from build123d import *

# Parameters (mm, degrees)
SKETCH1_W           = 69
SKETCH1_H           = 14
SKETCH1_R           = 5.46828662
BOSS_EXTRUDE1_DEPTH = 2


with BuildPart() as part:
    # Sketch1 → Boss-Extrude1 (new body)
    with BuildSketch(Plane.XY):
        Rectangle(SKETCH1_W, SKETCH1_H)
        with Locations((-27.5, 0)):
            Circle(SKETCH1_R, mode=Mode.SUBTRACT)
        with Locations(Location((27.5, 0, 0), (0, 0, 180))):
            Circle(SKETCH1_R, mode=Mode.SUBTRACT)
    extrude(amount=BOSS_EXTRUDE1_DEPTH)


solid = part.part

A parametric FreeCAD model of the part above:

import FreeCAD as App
import Part
import Sketcher

doc = App.newDocument("Part")
body = doc.addObject("PartDesign::Body", "Body")

sketch1 = body.newObject("Sketcher::SketchObject", "Sketch")
sketch1.AttachmentSupport = (doc.getObject("XY_Plane"), [""])
sketch1.MapMode = "FlatFace"
sketch1.addGeometry([
    Part.LineSegment(App.Vector(-34, 7, 0), App.Vector(-34, -7, 0)),
    Part.LineSegment(App.Vector(-34, -7, 0), App.Vector(34, -7, 0)),
    Part.LineSegment(App.Vector(34, -7, 0), App.Vector(34, 7, 0)),
    Part.LineSegment(App.Vector(34, 7, 0), App.Vector(-34, 7, 0)),
    Part.Circle(App.Vector(-28, 0, 0), App.Vector(0, 0, 1), 5),
    Part.Circle(App.Vector(28, 0, 0), App.Vector(0, 0, 1), 5),
], False)
sketch1.addConstraint([
    Sketcher.Constraint("Coincident", 0, 2, 1, 1),
    Sketcher.Constraint("Coincident", 1, 2, 2, 1),
    Sketcher.Constraint("Coincident", 2, 2, 3, 1),
    Sketcher.Constraint("Coincident", 3, 2, 0, 1),
    Sketcher.Constraint("Vertical", 0),
    Sketcher.Constraint("Horizontal", 1),
    Sketcher.Constraint("Vertical", 2),
    Sketcher.Constraint("Horizontal", 3),
    Sketcher.Constraint("Equal", 4, 5),
    Sketcher.Constraint("Symmetric", 4, 3, 5, 3, -1, 1),
    Sketcher.Constraint("Symmetric", 0, 2, 2, 2, -1, 1),
    Sketcher.Constraint("PointOnObject", 4, 3, -1),
    Sketcher.Constraint("DistanceX", 1, 1, 1, 2, 69.0),
    Sketcher.Constraint("DistanceY", 0, 2, 0, 1, 14.0),
    Sketcher.Constraint("DistanceX", 4, 3, 5, 3, 55.0),
    Sketcher.Constraint("Diameter", 4, 10.936573),
])
pad1 = body.newObject("PartDesign::Pad", "Pad")
pad1.Profile = sketch1
pad1.Length = 2

doc.recompute()
